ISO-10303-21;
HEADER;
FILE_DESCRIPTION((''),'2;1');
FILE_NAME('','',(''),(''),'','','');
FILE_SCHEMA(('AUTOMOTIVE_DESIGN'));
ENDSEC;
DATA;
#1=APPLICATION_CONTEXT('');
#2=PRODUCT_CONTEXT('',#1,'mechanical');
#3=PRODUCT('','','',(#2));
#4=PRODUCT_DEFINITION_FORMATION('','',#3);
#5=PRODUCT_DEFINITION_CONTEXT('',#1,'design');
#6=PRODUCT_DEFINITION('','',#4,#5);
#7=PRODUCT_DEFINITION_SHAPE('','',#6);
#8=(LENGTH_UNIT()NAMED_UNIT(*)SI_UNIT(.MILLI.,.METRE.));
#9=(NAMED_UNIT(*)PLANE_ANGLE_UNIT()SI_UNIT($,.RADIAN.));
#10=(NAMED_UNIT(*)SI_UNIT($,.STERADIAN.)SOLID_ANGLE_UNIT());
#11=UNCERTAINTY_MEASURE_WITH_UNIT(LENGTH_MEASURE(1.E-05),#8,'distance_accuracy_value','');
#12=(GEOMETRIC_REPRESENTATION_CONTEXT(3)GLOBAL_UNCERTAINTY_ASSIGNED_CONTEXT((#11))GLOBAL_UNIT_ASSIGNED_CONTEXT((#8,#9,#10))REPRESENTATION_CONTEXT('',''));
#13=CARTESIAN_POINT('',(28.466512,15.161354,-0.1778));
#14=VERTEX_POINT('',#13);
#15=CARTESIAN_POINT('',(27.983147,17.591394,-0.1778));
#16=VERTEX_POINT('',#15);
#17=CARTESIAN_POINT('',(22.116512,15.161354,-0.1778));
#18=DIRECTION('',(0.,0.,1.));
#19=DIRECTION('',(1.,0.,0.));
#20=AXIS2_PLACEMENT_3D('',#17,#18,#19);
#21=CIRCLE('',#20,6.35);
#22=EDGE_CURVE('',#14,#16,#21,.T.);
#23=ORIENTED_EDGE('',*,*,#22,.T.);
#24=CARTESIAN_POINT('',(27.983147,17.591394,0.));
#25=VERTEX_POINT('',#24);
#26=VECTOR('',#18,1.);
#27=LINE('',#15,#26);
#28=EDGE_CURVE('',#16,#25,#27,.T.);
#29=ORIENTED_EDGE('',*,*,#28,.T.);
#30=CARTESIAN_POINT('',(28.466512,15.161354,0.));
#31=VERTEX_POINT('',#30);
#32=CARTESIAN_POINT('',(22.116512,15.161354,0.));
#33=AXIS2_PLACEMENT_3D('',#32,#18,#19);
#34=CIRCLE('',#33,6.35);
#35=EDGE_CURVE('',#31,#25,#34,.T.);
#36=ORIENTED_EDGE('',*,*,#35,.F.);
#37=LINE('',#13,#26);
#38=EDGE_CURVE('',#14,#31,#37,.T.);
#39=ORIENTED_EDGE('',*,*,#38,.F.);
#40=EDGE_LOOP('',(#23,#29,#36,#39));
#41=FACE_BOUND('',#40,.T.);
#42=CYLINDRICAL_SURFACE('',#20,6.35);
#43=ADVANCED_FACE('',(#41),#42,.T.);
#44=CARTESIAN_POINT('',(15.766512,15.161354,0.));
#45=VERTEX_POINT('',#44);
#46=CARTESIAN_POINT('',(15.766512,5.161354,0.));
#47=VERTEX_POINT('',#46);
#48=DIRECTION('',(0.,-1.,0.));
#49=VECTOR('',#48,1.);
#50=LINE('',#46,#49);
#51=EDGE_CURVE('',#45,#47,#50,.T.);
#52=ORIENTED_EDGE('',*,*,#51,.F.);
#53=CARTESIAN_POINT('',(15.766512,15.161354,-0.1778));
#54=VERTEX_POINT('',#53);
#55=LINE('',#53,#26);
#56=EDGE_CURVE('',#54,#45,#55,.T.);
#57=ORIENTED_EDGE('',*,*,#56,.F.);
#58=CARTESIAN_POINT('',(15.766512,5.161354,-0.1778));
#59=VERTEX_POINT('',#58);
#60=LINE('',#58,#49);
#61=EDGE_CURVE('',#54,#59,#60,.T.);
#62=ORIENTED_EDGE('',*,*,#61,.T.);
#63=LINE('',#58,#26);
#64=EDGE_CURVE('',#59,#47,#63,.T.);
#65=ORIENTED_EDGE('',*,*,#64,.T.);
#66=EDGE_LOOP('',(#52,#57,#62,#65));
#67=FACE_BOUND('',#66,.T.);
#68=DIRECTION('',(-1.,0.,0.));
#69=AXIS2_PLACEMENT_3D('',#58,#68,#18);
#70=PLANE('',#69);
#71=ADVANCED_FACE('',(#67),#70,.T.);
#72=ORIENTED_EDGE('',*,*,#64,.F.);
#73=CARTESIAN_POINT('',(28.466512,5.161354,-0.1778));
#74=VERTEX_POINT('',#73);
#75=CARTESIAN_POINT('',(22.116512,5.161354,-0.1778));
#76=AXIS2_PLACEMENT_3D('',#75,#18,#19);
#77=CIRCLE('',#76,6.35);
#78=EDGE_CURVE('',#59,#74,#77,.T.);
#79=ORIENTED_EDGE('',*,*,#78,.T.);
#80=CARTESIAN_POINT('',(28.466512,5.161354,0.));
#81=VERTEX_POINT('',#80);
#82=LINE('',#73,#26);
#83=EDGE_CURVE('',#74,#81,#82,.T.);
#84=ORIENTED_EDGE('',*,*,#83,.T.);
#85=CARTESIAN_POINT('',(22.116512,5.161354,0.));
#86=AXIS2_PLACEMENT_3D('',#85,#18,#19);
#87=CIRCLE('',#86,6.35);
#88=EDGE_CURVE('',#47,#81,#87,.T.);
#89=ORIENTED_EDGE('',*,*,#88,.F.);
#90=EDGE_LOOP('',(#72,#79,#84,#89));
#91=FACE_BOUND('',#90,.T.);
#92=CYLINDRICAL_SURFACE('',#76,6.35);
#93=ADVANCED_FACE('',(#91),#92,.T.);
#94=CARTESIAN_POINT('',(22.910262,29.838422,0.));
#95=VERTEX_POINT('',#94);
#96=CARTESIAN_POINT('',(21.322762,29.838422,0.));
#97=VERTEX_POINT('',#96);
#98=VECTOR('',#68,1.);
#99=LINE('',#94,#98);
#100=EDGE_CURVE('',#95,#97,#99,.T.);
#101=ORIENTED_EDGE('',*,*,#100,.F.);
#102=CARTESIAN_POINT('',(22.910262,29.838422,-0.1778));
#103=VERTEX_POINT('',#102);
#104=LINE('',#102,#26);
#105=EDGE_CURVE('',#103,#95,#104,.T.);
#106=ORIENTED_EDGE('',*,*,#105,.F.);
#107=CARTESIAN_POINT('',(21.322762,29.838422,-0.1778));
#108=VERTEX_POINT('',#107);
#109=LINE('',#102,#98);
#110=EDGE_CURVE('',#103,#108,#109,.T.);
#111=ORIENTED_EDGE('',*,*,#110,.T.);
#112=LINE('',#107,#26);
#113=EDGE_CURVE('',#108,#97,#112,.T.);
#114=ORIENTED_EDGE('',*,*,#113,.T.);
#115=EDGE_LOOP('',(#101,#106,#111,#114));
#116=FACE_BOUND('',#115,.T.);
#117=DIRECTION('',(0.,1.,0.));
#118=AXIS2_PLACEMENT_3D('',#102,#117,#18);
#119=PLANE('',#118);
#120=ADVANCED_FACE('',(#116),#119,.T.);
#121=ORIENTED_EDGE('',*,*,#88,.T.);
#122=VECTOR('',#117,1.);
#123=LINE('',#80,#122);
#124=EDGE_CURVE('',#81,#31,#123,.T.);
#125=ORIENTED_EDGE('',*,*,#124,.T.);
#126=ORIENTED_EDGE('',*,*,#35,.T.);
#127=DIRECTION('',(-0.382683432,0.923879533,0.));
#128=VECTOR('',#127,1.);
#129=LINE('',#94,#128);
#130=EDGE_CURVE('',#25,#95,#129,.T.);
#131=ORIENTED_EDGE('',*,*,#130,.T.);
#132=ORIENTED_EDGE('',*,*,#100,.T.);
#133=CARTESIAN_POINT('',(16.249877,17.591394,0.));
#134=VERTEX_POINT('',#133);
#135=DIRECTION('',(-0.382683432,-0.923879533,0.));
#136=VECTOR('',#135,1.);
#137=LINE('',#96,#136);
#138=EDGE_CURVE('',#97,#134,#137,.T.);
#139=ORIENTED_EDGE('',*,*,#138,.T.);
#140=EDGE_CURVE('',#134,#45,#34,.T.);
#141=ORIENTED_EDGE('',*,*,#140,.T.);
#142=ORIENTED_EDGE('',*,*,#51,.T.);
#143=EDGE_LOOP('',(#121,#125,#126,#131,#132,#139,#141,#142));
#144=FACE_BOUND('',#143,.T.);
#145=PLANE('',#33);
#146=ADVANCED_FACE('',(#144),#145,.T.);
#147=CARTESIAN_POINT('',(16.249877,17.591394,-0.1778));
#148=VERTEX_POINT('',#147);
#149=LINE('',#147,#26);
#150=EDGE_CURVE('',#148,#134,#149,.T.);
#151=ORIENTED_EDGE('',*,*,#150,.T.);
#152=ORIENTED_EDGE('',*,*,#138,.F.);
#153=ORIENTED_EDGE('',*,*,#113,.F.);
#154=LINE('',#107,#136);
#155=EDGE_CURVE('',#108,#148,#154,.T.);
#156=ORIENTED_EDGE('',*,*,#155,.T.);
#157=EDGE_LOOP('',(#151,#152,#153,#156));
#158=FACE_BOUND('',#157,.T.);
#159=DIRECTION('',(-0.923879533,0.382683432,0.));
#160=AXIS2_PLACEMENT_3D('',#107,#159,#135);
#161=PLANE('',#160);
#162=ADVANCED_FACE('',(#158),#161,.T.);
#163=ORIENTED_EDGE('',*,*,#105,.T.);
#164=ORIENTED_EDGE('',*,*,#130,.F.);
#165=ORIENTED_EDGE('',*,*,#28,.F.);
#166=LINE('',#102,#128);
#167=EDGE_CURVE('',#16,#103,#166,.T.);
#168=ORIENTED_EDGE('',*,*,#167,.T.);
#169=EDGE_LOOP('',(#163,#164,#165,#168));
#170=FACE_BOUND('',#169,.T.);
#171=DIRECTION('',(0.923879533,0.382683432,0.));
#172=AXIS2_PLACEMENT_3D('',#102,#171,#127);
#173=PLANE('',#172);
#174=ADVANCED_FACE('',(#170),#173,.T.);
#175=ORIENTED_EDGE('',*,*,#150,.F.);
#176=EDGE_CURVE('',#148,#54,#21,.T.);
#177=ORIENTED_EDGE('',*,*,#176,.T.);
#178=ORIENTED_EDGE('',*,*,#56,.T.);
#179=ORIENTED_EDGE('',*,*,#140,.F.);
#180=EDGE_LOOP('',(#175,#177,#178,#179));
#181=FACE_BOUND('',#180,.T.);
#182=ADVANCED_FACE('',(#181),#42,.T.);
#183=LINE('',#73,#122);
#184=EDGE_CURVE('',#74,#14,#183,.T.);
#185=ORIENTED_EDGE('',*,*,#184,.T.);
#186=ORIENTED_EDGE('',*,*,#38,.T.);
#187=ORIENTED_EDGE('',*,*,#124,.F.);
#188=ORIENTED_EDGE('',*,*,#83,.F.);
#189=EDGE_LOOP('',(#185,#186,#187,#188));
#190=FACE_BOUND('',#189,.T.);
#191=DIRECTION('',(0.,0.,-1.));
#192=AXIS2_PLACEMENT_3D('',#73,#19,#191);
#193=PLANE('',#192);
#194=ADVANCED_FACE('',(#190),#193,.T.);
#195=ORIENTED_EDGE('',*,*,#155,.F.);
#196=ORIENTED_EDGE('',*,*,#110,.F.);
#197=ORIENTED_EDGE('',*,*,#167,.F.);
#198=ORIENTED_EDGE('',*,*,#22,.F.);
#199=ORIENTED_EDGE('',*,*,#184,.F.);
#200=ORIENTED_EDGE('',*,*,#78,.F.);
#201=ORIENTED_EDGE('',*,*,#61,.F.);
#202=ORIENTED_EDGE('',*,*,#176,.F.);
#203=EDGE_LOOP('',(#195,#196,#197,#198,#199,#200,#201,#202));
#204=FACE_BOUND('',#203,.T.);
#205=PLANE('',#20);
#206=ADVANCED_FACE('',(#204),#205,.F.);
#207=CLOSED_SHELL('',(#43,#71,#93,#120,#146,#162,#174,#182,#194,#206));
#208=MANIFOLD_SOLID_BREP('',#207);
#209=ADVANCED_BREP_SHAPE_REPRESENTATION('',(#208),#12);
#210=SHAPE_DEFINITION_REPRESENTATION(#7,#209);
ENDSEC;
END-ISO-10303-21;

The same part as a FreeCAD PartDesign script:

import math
import FreeCAD as App
import Part
import Sketcher
Q = App.Units.Quantity

doc = App.newDocument("Part")
body = doc.addObject("PartDesign::Body", "Body")

sketch1 = body.newObject("Sketcher::SketchObject", "Sketch")
sketch1.AttachmentSupport = (doc.getObject("XY_Plane"), [""])
sketch1.MapMode = "FlatFace"
sketch1.addGeometry(Part.LineSegment(App.Vector(28.466512, 5.161354, 0), App.Vector(28.466512, 15.161354, 0)), False)
sketch1.addGeometry(Part.ArcOfCircle(Part.Circle(App.Vector(22.116512, 15.161354, 0), App.Vector(0, 0, 1), 6.35), math.radians(0), math.radians(22.5)), False)
sketch1.addGeometry(Part.LineSegment(App.Vector(27.983147, 17.591394, 0), App.Vector(22.910262, 29.838422, 0)), False)
sketch1.addGeometry(Part.LineSegment(App.Vector(22.910262, 29.838422, 0), App.Vector(21.322762, 29.838422, 0)), False)
sketch1.addGeometry(Part.LineSegment(App.Vector(21.322762, 29.838422, 0), App.Vector(16.249877, 17.591394, 0)), False)
sketch1.addGeometry(Part.ArcOfCircle(Part.Circle(App.Vector(22.116512, 15.161354, 0), App.Vector(0, 0, 1), 6.35), math.radians(157.5), math.radians(180)), False)
sketch1.addGeometry(Part.LineSegment(App.Vector(15.766512, 15.161354, 0), App.Vector(15.766512, 5.161354, 0)), False)
sketch1.addGeometry(Part.ArcOfCircle(Part.Circle(App.Vector(22.116512, 5.161354, 0), App.Vector(0, 0, 1), 6.35), math.radians(180), math.radians(360)), False)
sketch1.addConstraint(Sketcher.Constraint("Tangent", 0, 2, 1, 1))
sketch1.addConstraint(Sketcher.Constraint("Tangent", 1, 2, 2, 1))
sketch1.addConstraint(Sketcher.Constraint("Coincident", 2, 2, 3, 1))
sketch1.addConstraint(Sketcher.Constraint("Coincident", 3, 2, 4, 1))
sketch1.addConstraint(Sketcher.Constraint("Tangent", 4, 2, 5, 1))
sketch1.addConstraint(Sketcher.Constraint("Tangent", 5, 2, 6, 1))
sketch1.addConstraint(Sketcher.Constraint("Tangent", 6, 2, 7, 1))
sketch1.addConstraint(Sketcher.Constraint("Tangent", 7, 2, 0, 1))
sketch1.addConstraint(Sketcher.Constraint("Vertical", 0))
sketch1.addConstraint(Sketcher.Constraint("Horizontal", 3))
sketch1.addConstraint(Sketcher.Constraint("Vertical", 6))
sketch1.addConstraint(Sketcher.Constraint("Coincident", 5, 3, 1, 3))
sketch1.addConstraint(Sketcher.Constraint("Equal", 1, 5))
sketch1.addConstraint(Sketcher.Constraint("Horizontal", 1, 2, 4, 2))
sketch1.addConstraint(Sketcher.Constraint("Radius", 1, Q("0.25 in")))
sketch1.addConstraint(Sketcher.Constraint("Angle", 2, Q("112.5 deg")))
sketch1.addConstraint(Sketcher.Constraint("DistanceX", 3, 2, 3, 1, Q("0.0625 in")))
sketch1.addConstraint(Sketcher.Constraint("DistanceY", 0, 1, 0, 2, 10.0))
sketch1.addConstraint(Sketcher.Constraint("DistanceX", -1, 1, 1, 3, 22.116512))
sketch1.addConstraint(Sketcher.Constraint("DistanceY", -1, 1, 2, 2, 29.838422))
pad1 = body.newObject("PartDesign::Pad", "Pad")
pad1.Profile = sketch1
pad1.Length = Q("0.007 in")
pad1.Reversed = True

doc.recompute()
